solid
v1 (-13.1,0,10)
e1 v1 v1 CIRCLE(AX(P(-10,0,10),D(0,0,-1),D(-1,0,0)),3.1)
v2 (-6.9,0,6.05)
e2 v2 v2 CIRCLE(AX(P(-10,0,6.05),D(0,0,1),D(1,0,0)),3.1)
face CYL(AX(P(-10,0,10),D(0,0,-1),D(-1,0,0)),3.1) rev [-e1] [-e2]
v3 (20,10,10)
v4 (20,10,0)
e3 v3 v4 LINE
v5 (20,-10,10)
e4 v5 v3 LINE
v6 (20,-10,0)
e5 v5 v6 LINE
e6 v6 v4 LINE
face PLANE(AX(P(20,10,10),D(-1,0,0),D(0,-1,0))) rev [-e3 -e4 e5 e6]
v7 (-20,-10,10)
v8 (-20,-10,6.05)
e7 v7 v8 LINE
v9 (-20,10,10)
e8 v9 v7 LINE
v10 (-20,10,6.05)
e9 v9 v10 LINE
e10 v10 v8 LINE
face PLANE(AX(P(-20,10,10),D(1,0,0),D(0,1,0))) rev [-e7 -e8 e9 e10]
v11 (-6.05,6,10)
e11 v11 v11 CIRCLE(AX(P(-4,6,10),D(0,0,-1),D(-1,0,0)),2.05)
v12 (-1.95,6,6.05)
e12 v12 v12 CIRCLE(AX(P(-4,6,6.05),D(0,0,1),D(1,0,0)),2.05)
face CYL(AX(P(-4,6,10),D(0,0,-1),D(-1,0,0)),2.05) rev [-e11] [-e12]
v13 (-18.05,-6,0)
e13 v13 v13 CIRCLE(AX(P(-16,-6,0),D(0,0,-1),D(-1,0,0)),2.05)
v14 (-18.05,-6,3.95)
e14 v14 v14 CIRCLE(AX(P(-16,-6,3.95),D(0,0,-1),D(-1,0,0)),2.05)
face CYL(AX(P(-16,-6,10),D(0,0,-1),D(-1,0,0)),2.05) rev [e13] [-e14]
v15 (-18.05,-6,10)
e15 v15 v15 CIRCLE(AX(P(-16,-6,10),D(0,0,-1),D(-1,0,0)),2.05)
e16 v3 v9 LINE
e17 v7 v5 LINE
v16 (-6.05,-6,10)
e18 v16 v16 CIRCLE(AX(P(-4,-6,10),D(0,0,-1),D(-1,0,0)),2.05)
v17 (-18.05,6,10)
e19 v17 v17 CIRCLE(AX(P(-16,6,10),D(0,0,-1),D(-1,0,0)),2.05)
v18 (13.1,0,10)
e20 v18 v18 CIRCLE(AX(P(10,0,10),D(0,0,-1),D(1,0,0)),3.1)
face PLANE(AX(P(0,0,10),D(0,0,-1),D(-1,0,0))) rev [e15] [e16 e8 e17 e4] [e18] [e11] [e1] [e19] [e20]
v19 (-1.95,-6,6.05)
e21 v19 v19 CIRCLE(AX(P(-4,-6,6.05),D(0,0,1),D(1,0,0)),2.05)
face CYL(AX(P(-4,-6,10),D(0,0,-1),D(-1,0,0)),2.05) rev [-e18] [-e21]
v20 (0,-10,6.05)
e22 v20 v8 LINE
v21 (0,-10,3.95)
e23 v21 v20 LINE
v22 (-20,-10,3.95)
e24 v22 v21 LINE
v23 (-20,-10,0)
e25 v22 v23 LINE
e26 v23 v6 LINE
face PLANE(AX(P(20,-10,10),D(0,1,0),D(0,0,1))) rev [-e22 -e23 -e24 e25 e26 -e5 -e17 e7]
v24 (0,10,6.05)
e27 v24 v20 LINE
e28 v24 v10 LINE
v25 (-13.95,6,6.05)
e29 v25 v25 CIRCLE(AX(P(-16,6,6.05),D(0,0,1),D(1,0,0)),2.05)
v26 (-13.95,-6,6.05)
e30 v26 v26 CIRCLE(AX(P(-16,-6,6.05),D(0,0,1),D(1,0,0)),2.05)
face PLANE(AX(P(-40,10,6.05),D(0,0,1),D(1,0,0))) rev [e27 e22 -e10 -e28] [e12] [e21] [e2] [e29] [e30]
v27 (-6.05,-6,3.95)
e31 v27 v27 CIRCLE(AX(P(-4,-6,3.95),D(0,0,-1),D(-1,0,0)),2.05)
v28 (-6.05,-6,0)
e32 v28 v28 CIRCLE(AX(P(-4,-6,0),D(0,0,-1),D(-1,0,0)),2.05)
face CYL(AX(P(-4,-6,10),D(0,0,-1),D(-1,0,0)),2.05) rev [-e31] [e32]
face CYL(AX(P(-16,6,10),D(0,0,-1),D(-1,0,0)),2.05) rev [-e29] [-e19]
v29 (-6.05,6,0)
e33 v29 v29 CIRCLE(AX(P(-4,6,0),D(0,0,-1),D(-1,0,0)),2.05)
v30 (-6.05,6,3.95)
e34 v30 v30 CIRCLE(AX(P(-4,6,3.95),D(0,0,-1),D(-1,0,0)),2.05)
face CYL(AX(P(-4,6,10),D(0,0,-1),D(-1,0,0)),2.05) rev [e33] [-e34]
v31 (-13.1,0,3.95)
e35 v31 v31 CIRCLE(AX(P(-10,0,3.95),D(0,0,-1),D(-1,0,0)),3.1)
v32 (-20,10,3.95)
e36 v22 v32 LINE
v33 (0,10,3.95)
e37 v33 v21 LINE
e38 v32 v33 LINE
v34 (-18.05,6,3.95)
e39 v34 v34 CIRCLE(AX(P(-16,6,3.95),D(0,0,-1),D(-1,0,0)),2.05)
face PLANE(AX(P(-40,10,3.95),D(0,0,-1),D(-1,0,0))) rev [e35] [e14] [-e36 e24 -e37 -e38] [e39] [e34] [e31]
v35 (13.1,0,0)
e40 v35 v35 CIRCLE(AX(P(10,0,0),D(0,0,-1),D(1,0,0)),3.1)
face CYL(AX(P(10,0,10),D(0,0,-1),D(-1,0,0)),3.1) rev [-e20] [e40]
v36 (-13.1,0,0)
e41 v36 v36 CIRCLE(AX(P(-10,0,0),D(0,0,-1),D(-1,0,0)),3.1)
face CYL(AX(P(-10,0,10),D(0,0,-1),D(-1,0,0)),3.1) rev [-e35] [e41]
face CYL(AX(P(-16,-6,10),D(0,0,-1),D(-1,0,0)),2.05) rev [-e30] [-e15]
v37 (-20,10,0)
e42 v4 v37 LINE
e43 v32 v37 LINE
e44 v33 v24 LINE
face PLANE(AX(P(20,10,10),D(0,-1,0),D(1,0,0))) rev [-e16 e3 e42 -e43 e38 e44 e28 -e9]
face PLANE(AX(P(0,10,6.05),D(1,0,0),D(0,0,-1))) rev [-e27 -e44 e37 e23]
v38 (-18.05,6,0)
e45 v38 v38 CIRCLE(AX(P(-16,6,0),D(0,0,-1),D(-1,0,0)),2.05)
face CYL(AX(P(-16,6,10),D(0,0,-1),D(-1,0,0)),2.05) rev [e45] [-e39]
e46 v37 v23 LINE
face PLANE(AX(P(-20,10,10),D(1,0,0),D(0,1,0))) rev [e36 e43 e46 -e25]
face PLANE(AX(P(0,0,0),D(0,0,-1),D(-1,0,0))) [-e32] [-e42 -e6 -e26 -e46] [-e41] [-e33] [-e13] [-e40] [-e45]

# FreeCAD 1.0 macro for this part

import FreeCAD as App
import Part
import Sketcher
Q = App.Units.Quantity


def add_polygon(sketch, points):
    """Adds a closed chain of lines whose ends are joined by coincident constraints."""
    first, n = sketch.GeometryCount, len(points)
    for a, b in zip(points, points[1:] + points[:1]):
        sketch.addGeometry(Part.LineSegment(App.Vector(*a, 0), App.Vector(*b, 0)), False)
    for i in range(n):
        sketch.addConstraint(Sketcher.Constraint("Coincident", first + i, 2, first + (i + 1) % n, 1))

doc = App.newDocument("Part")
body = doc.addObject("PartDesign::Body", "Body")

# Sketch on XY plane
sketch1 = body.newObject("Sketcher::SketchObject", "Sketch")
sketch1.AttachmentSupport = (doc.getObject("XY_Plane"), [""])
sketch1.MapMode = "FlatFace"
add_polygon(sketch1, [(-20, 10), (-20, -10), (20, -10), (20, 10)])  # lines 0-3
sketch1.addConstraint([
    Sketcher.Constraint("Vertical", 0),
    Sketcher.Constraint("Horizontal", 1),
    Sketcher.Constraint("Vertical", 2),
    Sketcher.Constraint("Horizontal", 3),
    Sketcher.Constraint("Symmetric", 0, 2, 2, 2, -1, 1),
    Sketcher.Constraint("DistanceX", 1, 1, 1, 2, Q("40 mm")),
    Sketcher.Constraint("DistanceY", 0, 2, 0, 1, Q("20 mm")),
])
pad1 = body.newObject("PartDesign::Pad", "Pad")
pad1.Profile = sketch1
pad1.Length = 10

# Sketch on XZ plane
sketch2 = body.newObject("Sketcher::SketchObject", "Sketch001")
sketch2.AttachmentSupport = (doc.getObject("XZ_Plane"), [""])
sketch2.MapMode = "FlatFace"
sketch2.AttachmentOffset = App.Placement(App.Vector(0, 0, 10), App.Rotation())
add_polygon(sketch2, [(0, 4), (0, 6), (-40, 6), (-40, 4)])  # lines 0-3
sketch2.addConstraint([
    Sketcher.Constraint("Vertical", 0),
    Sketcher.Constraint("Horizontal", 1),
    Sketcher.Constraint("Vertical", 2),
    Sketcher.Constraint("Horizontal", 3),
    Sketcher.Constraint("PointOnObject", 0, 2, -2),
    Sketcher.Constraint("DistanceX", 1, 2, 1, 1, Q("40 mm")),
    Sketcher.Constraint("DistanceY", 0, 1, 0, 2, Q("2.1 mm")),
    Sketcher.Constraint("DistanceY", -1, 1, 0, 2, Q("6.05 mm")),
])
pocket1 = body.newObject("PartDesign::Pocket", "Pocket")
pocket1.Profile = sketch2
pocket1.Type = "ThroughAll"

# Sketch on XY plane
sketch3 = body.newObject("Sketcher::SketchObject", "Sketch002")
sketch3.AttachmentSupport = (doc.getObject("XY_Plane"), [""])
sketch3.MapMode = "FlatFace"
sketch3.addGeometry([
    Part.Circle(App.Vector(-16, 6, 0), App.Vector(0, 0, 1), 2),
    Part.Circle(App.Vector(-4, 6, 0), App.Vector(0, 0, 1), 2),
    Part.Circle(App.Vector(-4, -6, 0), App.Vector(0, 0, 1), 2),
    Part.Circle(App.Vector(-16, -6, 0), App.Vector(0, 0, 1), 2),
], False)
sketch3.addConstraint([
    Sketcher.Constraint("Equal", 0, 1),
    Sketcher.Constraint("Equal", 1, 2),
    Sketcher.Constraint("Equal", 2, 3),
    Sketcher.Constraint("Symmetric", 1, 3, 2, 3, -1),
    Sketcher.Constraint("Symmetric", 0, 3, 3, 3, -1),
    Sketcher.Constraint("Horizontal", 0, 3, 1, 3),
    Sketcher.Constraint("Diameter", 0, Q("4.1 mm")),
    Sketcher.Constraint("DistanceX", 0, 3, -1, 1, Q("16 mm")),
    Sketcher.Constraint("DistanceY", -1, 1, 0, 3, Q("6 mm")),
    Sketcher.Constraint("DistanceX", 1, 3, -1, 1, Q("4 mm")),
])
pocket2 = body.newObject("PartDesign::Pocket", "Pocket001")
pocket2.Profile = sketch3
pocket2.Type = "ThroughAll"
pocket2.Reversed = True

# Sketch on XY plane
sketch4 = body.newObject("Sketcher::SketchObject", "Sketch003")
sketch4.AttachmentSupport = (doc.getObject("XY_Plane"), [""])
sketch4.MapMode = "FlatFace"
sketch4.addGeometry([
    Part.Circle(App.Vector(-10, 0, 0), App.Vector(0, 0, 1), 3.1),
    Part.Circle(App.Vector(10, 0, 0), App.Vector(0, 0, 1), 3.1),
], False)
sketch4.addConstraint([
    Sketcher.Constraint("Equal", 0, 1),
    Sketcher.Constraint("Symmetric", 0, 3, 1, 3, -1, 1),
    Sketcher.Constraint("PointOnObject", 0, 3, -1),
    Sketcher.Constraint("Diameter", 0, Q("6.2 mm")),
    Sketcher.Constraint("DistanceX", 0, 3, -1, 1, Q("10 mm")),
])
pocket3 = body.newObject("PartDesign::Pocket", "Pocket002")
pocket3.Profile = sketch4
pocket3.Length = 10
pocket3.Reversed = True

doc.recompute()
